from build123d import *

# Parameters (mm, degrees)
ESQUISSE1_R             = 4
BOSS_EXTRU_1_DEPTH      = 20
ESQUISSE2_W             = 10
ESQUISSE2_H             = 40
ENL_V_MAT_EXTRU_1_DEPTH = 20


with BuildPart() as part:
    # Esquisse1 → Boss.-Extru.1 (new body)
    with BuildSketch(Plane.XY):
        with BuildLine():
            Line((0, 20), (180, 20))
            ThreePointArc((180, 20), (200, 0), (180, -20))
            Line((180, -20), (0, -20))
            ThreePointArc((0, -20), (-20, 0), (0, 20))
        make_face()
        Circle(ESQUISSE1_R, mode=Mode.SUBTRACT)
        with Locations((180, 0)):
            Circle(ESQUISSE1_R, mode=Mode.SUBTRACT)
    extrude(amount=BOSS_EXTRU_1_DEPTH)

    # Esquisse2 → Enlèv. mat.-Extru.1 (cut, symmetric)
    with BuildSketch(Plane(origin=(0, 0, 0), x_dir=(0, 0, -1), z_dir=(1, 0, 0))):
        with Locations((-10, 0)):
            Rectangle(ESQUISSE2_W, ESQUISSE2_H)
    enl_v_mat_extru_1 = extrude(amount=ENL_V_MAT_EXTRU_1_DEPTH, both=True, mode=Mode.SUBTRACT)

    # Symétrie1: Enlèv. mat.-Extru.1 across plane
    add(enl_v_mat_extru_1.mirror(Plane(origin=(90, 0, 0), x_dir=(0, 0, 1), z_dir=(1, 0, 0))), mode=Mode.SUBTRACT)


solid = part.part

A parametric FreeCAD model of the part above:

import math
import FreeCAD as App
import Part
import Sketcher


def add_polygon(sketch, points):
    """Adds a closed chain of lines whose ends are joined by coincident constraints."""
    first, n = sketch.GeometryCount, len(points)
    for a, b in zip(points, points[1:] + points[:1]):
        sketch.addGeometry(Part.LineSegment(App.Vector(*a, 0), App.Vector(*b, 0)), False)
    for i in range(n):
        sketch.addConstraint(Sketcher.Constraint("Coincident", first + i, 2, first + (i + 1) % n, 1))

doc = App.newDocument("Part")
body = doc.addObject("PartDesign::Body", "Body")

# Sketch on XY plane
sketch1 = doc.addObject("Sketcher::SketchObject", "Sketch")
body.addObject(sketch1)
sketch1.AttachmentSupport = (doc.XY_Plane, [""])
sketch1.MapMode = "FlatFace"
sketch1.addGeometry([
    Part.LineSegment(App.Vector(180, 20, 0), App.Vector(0, 20, 0)),  # 0
    Part.ArcOfCircle(Part.Circle(App.Vector(0, 0, 0), App.Vector(0, 0, 1), 20), math.radians(90), math.radians(270)),  # 1
    Part.LineSegment(App.Vector(0, -20, 0), App.Vector(180, -20, 0)),  # 2
    Part.ArcOfCircle(Part.Circle(App.Vector(180, 0, 0), App.Vector(0, 0, 1), 20), math.radians(-90), math.radians(90)),  # 3
    Part.Circle(App.Vector(180, 0, 0), App.Vector(0, 0, 1), 4),  # 4
    Part.Circle(App.Vector(0, 0, 0), App.Vector(0, 0, 1), 4),  # 5
], False)
sketch1.addConstraint([
    Sketcher.Constraint("Tangent", 0, 2, 1, 1),
    Sketcher.Constraint("Tangent", 1, 2, 2, 1),
    Sketcher.Constraint("Tangent", 2, 2, 3, 1),
    Sketcher.Constraint("Tangent", 3, 2, 0, 1),
    Sketcher.Constraint("Horizontal", 0),
    Sketcher.Constraint("Horizontal", 2),
    Sketcher.Constraint("Coincident", 1, 3, -1, 1),
    Sketcher.Constraint("Coincident", 5, 3, -1, 1),
    Sketcher.Constraint("Coincident", 4, 3, 3, 3),
    Sketcher.Constraint("Equal", 4, 5),
    Sketcher.Constraint("Diameter", 4, 8.0),
    Sketcher.Constraint("Radius", 1, 20.0),
    Sketcher.Constraint("DistanceX", 0, 2, 0, 1, 180.0),
])
pad1 = doc.addObject("PartDesign::Pad", "Pad")
body.addObject(pad1)
pad1.Profile = sketch1
pad1.Length = 20

# Sketch on YZ plane
sketch2 = doc.addObject("Sketcher::SketchObject", "Sketch001")
body.addObject(sketch2)
sketch2.AttachmentSupport = (doc.YZ_Plane, [""])
sketch2.MapMode = "FlatFace"
add_polygon(sketch2, [(20, 15), (-20, 15), (-20, 5), (20, 5)])  # lines 0-3
sketch2.addConstraint([
    Sketcher.Constraint("Horizontal", 0),
    Sketcher.Constraint("Vertical", 1),
    Sketcher.Constraint("Horizontal", 2),
    Sketcher.Constraint("Vertical", 3),
    Sketcher.Constraint("DistanceX", 0, 2, 0, 1, 40.0),
    Sketcher.Constraint("DistanceY", 1, 2, 1, 1, 10.0),
    Sketcher.Constraint("DistanceX", 0, 2, -1, 1, 20.0),
    Sketcher.Constraint("DistanceY", -1, 1, 0, 2, 15.0),
])
pocket1 = doc.addObject("PartDesign::Pocket", "Pocket")
body.addObject(pocket1)
pocket1.Profile = sketch2
pocket1.Length = 40
pocket1.Midplane = True
doc.recompute()

datumplane = doc.addObject("PartDesign::Plane", "DatumPlane")
body.addObject(datumplane)
datumplane.AttachmentSupport = (doc.YZ_Plane, [""])
datumplane.MapMode = "FlatFace"
datumplane.AttachmentOffset = App.Placement(App.Vector(0, 0, 90), App.Rotation())
mirrored = doc.addObject("PartDesign::Mirrored", "Mirrored")
body.addObject(mirrored)
mirrored.Originals = [pocket1]
mirrored.MirrorPlane = (datumplane, [""])
body.Tip = mirrored

doc.recompute()
